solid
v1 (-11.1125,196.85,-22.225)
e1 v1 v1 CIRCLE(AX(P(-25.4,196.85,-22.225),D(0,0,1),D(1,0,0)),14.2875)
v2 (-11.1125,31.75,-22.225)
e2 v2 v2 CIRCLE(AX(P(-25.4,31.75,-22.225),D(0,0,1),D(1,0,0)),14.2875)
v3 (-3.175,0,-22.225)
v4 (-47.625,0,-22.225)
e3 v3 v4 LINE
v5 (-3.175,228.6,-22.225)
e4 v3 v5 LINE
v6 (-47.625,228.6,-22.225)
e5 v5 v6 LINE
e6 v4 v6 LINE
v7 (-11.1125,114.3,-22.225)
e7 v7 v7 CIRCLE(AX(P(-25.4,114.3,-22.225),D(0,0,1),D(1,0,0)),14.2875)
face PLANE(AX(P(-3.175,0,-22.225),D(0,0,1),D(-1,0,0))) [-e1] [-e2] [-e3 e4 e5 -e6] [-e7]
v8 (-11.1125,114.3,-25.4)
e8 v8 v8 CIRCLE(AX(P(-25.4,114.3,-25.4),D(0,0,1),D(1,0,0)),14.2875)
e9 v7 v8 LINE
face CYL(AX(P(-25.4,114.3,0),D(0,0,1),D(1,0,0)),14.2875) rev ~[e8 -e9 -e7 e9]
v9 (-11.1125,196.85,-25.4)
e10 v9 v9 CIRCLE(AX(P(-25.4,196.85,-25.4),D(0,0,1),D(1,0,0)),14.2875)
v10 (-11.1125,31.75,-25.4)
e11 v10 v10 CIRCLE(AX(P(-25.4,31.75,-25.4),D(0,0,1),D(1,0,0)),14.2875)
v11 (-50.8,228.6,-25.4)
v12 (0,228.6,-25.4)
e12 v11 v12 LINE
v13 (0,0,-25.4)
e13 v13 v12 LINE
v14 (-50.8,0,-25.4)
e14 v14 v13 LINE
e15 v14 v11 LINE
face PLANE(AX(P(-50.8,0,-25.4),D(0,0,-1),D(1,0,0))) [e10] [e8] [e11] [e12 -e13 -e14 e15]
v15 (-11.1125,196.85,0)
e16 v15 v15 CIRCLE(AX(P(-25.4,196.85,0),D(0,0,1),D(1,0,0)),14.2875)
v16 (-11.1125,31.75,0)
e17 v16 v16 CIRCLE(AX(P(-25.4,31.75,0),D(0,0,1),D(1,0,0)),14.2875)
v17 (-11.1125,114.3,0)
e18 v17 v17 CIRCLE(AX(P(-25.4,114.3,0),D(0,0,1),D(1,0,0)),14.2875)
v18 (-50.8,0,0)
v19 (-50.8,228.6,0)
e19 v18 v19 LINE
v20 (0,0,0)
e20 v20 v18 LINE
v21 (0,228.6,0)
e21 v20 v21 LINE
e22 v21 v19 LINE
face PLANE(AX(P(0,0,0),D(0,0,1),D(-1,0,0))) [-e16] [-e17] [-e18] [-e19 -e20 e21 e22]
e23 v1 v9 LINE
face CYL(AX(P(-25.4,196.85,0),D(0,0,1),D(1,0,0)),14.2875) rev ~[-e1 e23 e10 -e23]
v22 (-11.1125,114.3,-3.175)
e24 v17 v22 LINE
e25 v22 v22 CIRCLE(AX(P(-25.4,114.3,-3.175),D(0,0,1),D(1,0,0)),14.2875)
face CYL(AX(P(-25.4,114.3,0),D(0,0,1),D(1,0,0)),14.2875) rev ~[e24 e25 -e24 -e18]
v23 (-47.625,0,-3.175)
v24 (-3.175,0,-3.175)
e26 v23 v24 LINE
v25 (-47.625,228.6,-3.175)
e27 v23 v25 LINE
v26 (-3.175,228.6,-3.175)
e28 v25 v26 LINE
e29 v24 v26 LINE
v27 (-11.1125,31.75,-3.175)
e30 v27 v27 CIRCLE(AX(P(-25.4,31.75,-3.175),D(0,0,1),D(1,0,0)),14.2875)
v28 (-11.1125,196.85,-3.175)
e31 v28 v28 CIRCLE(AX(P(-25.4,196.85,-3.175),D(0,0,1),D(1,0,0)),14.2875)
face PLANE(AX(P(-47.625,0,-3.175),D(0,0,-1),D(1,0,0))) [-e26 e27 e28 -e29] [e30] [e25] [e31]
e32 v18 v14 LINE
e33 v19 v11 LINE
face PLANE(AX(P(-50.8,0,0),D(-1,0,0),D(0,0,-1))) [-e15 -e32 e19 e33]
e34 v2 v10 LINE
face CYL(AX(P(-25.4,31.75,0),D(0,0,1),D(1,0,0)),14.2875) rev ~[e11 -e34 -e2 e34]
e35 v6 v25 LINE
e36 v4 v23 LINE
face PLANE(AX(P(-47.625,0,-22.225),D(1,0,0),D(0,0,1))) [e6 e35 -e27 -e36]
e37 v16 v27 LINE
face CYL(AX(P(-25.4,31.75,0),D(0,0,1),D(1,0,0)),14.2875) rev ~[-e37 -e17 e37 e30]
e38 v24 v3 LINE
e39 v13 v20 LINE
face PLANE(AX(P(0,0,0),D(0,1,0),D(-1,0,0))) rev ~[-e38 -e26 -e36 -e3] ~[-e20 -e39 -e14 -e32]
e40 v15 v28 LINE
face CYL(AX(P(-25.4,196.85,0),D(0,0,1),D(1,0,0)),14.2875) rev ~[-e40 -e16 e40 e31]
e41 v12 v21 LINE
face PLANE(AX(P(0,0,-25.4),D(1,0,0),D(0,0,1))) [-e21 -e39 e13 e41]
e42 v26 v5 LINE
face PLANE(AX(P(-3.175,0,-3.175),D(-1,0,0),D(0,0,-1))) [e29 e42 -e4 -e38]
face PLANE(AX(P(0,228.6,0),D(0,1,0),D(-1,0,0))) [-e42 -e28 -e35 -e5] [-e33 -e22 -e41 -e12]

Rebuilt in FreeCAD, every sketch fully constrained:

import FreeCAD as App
import Part
import Sketcher
from FreeCAD import Vector
Q = App.Units.Quantity


def add_polygon(sketch, points):
    """Adds a closed chain of lines whose ends are joined by coincident constraints."""
    first, n = sketch.GeometryCount, len(points)
    for a, b in zip(points, points[1:] + points[:1]):
        sketch.addGeometry(Part.LineSegment(App.Vector(*a, 0), App.Vector(*b, 0)), False)
    for i in range(n):
        sketch.addConstraint(Sketcher.Constraint("Coincident", first + i, 2, first + (i + 1) % n, 1))

doc = App.newDocument("Part")
params = doc.addObject("Spreadsheet::Sheet", "Params")
for row, (alias, value) in enumerate([
    ("sketch1_width", "2 in"),
    ("sketch1_height", "1 in"),
    ("pad1_length", "9 in"),
    ("sketch2_diameter", "1.125 in"),
    ("pocket1_length", "2 in"),
], start=1):
    params.set(f"A{row}", alias)
    params.set(f"B{row}", "=" + value)
    params.setAlias(f"B{row}", alias)

body = doc.addObject("PartDesign::Body", "Body")

# Sketch on XZ plane
sketch1 = body.newObject("Sketcher::SketchObject", "Sketch")
sketch1.AttachmentSupport = (doc.getObject("XZ_Plane"), [""])
sketch1.MapMode = "FlatFace"
add_polygon(sketch1, [(-50.8, 0), (0, 0), (0, -25.4), (-50.8, -25.4)])  # lines 0-3
add_polygon(sketch1, [(-47.625, -3.175), (-47.625, -22.225), (-3.175, -22.225), (-3.175, -3.175)])  # lines 4-7
sketch1.addConstraint(Sketcher.Constraint("Horizontal", 0))
sketch1.addConstraint(Sketcher.Constraint("Vertical", 1))
sketch1.addConstraint(Sketcher.Constraint("Horizontal", 2))
sketch1.addConstraint(Sketcher.Constraint("Vertical", 3))
sketch1.addConstraint(Sketcher.Constraint("Vertical", 4))
sketch1.addConstraint(Sketcher.Constraint("Horizontal", 5))
sketch1.addConstraint(Sketcher.Constraint("Vertical", 6))
sketch1.addConstraint(Sketcher.Constraint("Horizontal", 7))
sketch1.addConstraint(Sketcher.Constraint("Coincident", 0, 2, -1, 1))
sketch1.addConstraint(Sketcher.Constraint("DistanceX", 0, 1, 0, 2, Q("2 in")))
sketch1.addConstraint(Sketcher.Constraint("DistanceY", 1, 2, 1, 1, Q("1 in")))
sketch1.addConstraint(Sketcher.Constraint("DistanceX", 5, 2, -1, 1, Q("0.125 in")))
sketch1.addConstraint(Sketcher.Constraint("DistanceY", 6, 2, -1, 1, Q("0.125 in")))
sketch1.addConstraint(Sketcher.Constraint("DistanceX", 2, 2, 4, 2, Q("0.125 in")))
sketch1.addConstraint(Sketcher.Constraint("DistanceY", 2, 2, 4, 2, Q("0.125 in")))
sketch1.setExpression("Constraints[17]", "Params.sketch1_width")
sketch1.setExpression("Constraints[18]", "Params.sketch1_height")
pad1 = body.newObject("PartDesign::Pad", "Pad")
pad1.Profile = sketch1
pad1.setExpression("Length", "Params.pad1_length")
pad1.Reversed = True

# Sketch on XY plane
sketch2 = body.newObject("Sketcher::SketchObject", "Sketch001")
sketch2.AttachmentSupport = (doc.getObject("XY_Plane"), [""])
sketch2.MapMode = "FlatFace"
sketch2.addGeometry(Part.Circle(Vector(-25.4, 31.75, 0), Vector(0, 0, 1), 14.2875), False)
sketch2.addGeometry(Part.Circle(Vector(-25.4, 196.85, 0), Vector(0, 0, 1), 14.2875), False)
sketch2.addGeometry(Part.Circle(Vector(-25.4, 114.3, 0), Vector(0, 0, 1), 14.2875), False)
sketch2.addConstraint(Sketcher.Constraint("Equal", 0, 1))
sketch2.addConstraint(Sketcher.Constraint("Equal", 1, 2))
sketch2.addConstraint(Sketcher.Constraint("Vertical", 0, 3, 1, 3))
sketch2.addConstraint(Sketcher.Constraint("Vertical", 1, 3, 2, 3))
sketch2.addConstraint(Sketcher.Constraint("Diameter", 0, Q("1.125 in")))
sketch2.addConstraint(Sketcher.Constraint("DistanceX", 0, 3, -1, 1, Q("1 in")))
sketch2.addConstraint(Sketcher.Constraint("DistanceY", -1, 1, 2, 3, Q("4.5 in")))
sketch2.addConstraint(Sketcher.Constraint("DistanceY", -1, 1, 0, 3, Q("1.25 in")))
sketch2.addConstraint(Sketcher.Constraint("DistanceY", 0, 3, 1, 3, Q("6.5 in")))
sketch2.setExpression("Constraints[4]", "Params.sketch2_diameter")
pocket1 = body.newObject("PartDesign::Pocket", "Pocket")
pocket1.Profile = sketch2
pocket1.setExpression("Length", "Params.pocket1_length")

doc.recompute()
